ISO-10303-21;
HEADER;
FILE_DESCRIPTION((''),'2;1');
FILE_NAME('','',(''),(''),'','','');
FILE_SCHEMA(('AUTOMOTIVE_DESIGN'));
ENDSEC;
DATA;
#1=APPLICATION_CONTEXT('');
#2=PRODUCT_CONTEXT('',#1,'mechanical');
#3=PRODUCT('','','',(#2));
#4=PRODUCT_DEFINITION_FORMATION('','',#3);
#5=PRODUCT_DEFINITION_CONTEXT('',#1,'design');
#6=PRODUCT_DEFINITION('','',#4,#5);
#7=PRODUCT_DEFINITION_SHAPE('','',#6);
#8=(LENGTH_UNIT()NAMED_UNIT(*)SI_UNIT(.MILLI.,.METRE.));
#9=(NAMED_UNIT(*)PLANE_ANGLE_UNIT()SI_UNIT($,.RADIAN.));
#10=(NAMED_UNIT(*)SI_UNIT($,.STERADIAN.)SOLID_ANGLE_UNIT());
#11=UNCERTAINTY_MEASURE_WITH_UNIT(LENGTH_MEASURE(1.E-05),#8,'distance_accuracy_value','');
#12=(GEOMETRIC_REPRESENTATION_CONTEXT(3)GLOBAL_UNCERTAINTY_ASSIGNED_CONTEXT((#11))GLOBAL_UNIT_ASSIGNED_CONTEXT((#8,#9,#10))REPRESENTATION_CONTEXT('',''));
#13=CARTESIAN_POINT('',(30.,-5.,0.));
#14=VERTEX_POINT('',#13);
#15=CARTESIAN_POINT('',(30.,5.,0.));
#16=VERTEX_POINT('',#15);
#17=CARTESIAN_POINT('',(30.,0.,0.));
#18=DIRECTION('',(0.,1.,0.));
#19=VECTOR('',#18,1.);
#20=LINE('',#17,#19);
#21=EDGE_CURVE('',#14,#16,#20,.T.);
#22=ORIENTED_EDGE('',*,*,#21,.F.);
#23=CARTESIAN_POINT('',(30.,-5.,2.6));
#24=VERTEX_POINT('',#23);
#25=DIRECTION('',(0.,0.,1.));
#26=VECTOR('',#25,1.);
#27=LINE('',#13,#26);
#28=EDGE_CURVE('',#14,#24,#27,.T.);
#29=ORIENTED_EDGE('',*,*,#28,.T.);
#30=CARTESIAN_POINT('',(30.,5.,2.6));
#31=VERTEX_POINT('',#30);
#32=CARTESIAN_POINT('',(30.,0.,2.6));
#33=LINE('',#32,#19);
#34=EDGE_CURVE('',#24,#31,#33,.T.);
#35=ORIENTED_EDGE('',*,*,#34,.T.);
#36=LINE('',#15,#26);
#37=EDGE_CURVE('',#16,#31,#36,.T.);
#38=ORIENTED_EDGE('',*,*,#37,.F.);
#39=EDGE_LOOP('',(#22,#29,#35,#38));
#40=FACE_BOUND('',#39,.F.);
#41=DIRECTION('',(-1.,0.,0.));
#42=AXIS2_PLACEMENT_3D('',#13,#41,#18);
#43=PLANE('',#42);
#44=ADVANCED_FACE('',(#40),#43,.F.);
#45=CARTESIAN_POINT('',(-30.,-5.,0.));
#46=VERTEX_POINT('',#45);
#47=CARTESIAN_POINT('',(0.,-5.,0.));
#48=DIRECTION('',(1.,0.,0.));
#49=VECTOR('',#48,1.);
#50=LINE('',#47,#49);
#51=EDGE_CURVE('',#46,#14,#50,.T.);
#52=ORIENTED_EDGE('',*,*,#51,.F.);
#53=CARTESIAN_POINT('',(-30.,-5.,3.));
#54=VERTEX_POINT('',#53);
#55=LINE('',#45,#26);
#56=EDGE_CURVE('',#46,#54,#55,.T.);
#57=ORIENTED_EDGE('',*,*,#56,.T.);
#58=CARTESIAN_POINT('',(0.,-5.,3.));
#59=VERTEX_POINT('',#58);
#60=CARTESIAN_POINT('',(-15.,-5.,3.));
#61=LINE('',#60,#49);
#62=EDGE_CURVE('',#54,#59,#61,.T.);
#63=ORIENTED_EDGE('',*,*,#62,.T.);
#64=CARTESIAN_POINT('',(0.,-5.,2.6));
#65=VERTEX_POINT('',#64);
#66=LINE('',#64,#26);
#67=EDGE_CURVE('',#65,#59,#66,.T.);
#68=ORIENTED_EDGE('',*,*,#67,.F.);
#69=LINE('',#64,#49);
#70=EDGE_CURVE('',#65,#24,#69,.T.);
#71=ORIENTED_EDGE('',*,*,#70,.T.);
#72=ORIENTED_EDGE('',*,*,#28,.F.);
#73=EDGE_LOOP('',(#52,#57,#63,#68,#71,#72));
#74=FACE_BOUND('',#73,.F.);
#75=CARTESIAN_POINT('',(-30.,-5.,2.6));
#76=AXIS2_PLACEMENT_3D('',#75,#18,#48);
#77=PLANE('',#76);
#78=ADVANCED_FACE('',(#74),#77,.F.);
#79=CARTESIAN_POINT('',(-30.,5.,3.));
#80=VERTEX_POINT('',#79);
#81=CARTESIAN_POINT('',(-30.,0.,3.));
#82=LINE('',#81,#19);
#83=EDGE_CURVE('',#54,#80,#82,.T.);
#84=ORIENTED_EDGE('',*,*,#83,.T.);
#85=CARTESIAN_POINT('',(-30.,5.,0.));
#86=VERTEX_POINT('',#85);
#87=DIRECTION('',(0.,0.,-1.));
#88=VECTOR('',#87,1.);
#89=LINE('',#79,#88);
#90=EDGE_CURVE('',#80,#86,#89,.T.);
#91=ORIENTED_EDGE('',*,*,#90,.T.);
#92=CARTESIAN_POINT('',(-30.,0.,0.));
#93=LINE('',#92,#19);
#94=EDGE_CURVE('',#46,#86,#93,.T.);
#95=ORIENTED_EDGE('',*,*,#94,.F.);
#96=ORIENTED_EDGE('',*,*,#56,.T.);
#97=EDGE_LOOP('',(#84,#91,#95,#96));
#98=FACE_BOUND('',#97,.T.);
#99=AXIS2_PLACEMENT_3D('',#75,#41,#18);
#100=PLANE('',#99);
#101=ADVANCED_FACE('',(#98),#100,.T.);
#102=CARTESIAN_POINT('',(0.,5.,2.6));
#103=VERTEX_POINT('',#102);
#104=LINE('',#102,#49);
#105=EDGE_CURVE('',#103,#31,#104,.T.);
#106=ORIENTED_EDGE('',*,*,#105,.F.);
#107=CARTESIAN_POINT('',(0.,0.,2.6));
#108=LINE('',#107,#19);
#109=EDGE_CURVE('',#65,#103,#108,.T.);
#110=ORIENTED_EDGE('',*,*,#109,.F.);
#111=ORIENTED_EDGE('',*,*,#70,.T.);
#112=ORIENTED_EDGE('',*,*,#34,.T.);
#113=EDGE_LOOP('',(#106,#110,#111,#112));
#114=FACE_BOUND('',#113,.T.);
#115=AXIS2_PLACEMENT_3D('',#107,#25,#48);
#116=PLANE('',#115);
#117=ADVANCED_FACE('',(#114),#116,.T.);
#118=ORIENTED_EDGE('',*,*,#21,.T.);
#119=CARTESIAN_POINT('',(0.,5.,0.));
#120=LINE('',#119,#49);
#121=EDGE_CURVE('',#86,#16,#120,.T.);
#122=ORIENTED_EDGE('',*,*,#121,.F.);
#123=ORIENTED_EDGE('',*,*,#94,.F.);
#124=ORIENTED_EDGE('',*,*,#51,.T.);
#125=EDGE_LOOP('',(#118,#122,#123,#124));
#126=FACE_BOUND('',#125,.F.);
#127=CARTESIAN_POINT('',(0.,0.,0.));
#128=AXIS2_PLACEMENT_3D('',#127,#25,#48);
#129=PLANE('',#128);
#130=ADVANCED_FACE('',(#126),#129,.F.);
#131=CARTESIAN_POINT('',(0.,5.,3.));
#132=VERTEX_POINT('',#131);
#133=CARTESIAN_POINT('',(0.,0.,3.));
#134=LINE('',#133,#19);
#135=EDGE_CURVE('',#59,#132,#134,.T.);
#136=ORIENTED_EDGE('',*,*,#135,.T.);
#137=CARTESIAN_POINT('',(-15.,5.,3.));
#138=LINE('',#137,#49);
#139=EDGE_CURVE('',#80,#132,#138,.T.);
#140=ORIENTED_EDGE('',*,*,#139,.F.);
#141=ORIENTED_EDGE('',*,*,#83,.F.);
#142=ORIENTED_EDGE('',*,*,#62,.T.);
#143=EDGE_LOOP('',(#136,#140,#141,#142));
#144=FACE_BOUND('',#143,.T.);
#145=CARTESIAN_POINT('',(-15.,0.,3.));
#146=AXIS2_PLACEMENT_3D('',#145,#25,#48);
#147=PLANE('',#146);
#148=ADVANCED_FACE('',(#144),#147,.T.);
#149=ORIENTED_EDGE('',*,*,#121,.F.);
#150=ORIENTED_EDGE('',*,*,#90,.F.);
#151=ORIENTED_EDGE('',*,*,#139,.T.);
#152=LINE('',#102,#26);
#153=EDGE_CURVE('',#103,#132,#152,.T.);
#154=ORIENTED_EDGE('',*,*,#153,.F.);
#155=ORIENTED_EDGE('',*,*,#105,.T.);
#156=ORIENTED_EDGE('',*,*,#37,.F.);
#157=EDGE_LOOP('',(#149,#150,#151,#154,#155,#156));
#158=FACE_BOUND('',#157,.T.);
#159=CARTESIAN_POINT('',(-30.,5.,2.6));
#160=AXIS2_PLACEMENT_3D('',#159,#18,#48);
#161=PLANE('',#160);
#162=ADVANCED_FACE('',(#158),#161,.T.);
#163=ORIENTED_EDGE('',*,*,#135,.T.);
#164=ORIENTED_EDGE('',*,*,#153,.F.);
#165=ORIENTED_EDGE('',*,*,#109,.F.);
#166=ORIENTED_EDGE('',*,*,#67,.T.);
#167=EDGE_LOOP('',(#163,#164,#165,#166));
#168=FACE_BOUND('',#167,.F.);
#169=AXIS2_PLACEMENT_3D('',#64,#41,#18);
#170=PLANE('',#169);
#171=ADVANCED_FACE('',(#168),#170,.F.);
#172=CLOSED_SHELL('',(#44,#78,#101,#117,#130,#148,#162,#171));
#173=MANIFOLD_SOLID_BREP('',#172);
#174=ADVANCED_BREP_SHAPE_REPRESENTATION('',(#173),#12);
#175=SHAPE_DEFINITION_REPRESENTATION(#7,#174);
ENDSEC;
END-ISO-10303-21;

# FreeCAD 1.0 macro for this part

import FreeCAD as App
import Part
import Sketcher

V = App.Vector


def add_polygon(sketch, points):
    """Adds a closed chain of lines whose ends are joined by coincident constraints."""
    first, n = sketch.GeometryCount, len(points)
    for a, b in zip(points, points[1:] + points[:1]):
        sketch.addGeometry(Part.LineSegment(App.Vector(*a, 0), App.Vector(*b, 0)), False)
    for i in range(n):
        sketch.addConstraint(Sketcher.Constraint("Coincident", first + i, 2, first + (i + 1) % n, 1))

doc = App.newDocument("Part")
params = doc.addObject("Spreadsheet::Sheet", "Params")
for row, (alias, value) in enumerate([
    ("sketch1_width", "60 mm"),
    ("sketch1_height", "10 mm"),
    ("pad1_length", "2.6 mm"),
    ("sketch2_width", "30 mm"),
    ("sketch2_height", "10 mm"),
    ("pad2_length", "0.4 mm"),
], start=1):
    params.set(f"A{row}", alias)
    params.set(f"B{row}", "=" + value)
    params.setAlias(f"B{row}", alias)

body = doc.addObject("PartDesign::Body", "Body")

sketch1 = doc.addObject("Sketcher::SketchObject", "Sketch")
body.addObject(sketch1)
sketch1.AttachmentSupport = (doc.XY_Plane, [""])
sketch1.MapMode = "FlatFace"
add_polygon(sketch1, [(-30, 5), (-30, -5), (30, -5), (30, 5)])
sketch1.addConstraint([
    Sketcher.Constraint("Vertical", 0),
    Sketcher.Constraint("Horizontal", 1),
    Sketcher.Constraint("Vertical", 2),
    Sketcher.Constraint("Horizontal", 3),
    Sketcher.Constraint("Symmetric", 0, 2, 2, 2, -1, 1),
    Sketcher.Constraint("DistanceX", 1, 1, 1, 2, 60.0),
    Sketcher.Constraint("DistanceY", 0, 2, 0, 1, 10.0),
])
sketch1.setExpression("Constraints[9]", "Params.sketch1_width")
sketch1.setExpression("Constraints[10]", "Params.sketch1_height")
pad1 = doc.addObject("PartDesign::Pad", "Pad")
body.addObject(pad1)
pad1.Profile = sketch1
pad1.setExpression("Length", "Params.pad1_length")

sketch2 = doc.addObject("Sketcher::SketchObject", "Sketch001")
body.addObject(sketch2)
sketch2.AttachmentSupport = (doc.XY_Plane, [""])
sketch2.MapMode = "FlatFace"
sketch2.AttachmentOffset = App.Placement(V(0, 0, 2.6), App.Rotation())
add_polygon(sketch2, [(-30, 5), (-30, -5), (0, -5), (0, 5)])
sketch2.addConstraint([
    Sketcher.Constraint("Vertical", 0),
    Sketcher.Constraint("Horizontal", 1),
    Sketcher.Constraint("Vertical", 2),
    Sketcher.Constraint("Horizontal", 3),
    Sketcher.Constraint("Symmetric", 1, 2, 2, 2, -1, 1),
    Sketcher.Constraint("DistanceX", 1, 1, 1, 2, 30.0),
    Sketcher.Constraint("DistanceY", 0, 2, 0, 1, 10.0),
])
sketch2.setExpression("Constraints[9]", "Params.sketch2_width")
sketch2.setExpression("Constraints[10]", "Params.sketch2_height")
pad2 = doc.addObject("PartDesign::Pad", "Pad001")
body.addObject(pad2)
pad2.Profile = sketch2
pad2.setExpression("Length", "Params.pad2_length")

doc.recompute()
